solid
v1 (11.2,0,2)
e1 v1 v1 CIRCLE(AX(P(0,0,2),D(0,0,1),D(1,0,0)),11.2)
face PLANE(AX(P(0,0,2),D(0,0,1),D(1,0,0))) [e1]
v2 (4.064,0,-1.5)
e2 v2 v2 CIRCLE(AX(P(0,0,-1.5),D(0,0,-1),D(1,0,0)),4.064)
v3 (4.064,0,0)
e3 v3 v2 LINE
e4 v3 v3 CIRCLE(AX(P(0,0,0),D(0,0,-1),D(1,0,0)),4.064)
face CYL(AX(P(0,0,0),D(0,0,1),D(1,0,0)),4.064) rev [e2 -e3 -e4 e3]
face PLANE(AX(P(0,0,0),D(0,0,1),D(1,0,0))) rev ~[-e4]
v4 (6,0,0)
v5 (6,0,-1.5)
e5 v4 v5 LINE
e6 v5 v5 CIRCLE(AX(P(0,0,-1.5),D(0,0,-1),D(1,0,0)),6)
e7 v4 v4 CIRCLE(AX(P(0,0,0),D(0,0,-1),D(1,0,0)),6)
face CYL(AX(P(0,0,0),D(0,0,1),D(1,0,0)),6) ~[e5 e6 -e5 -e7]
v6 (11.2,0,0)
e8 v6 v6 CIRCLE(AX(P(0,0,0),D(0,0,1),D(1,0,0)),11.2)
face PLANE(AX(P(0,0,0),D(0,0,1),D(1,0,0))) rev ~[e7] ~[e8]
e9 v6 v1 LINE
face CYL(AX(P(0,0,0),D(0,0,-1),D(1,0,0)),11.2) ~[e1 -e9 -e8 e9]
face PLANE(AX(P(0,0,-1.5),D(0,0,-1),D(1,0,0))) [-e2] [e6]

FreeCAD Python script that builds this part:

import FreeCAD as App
import Part
import Sketcher

doc = App.newDocument("Part")
body = doc.addObject("PartDesign::Body", "Body")

sketch1 = body.newObject("Sketcher::SketchObject", "Sketch")
sketch1.AttachmentSupport = (doc.getObject("XY_Plane"), [""])
sketch1.MapMode = "FlatFace"
sketch1.addGeometry(Part.Circle(App.Vector(0, 0, 0), App.Vector(0, 0, 1), 11.2), False)
sketch1.addConstraint([
    Sketcher.Constraint("Coincident", 0, 3, -1, 1),
    Sketcher.Constraint("Diameter", 0, 22.4),
])
pad1 = body.newObject("PartDesign::Pad", "Pad")
pad1.Profile = sketch1
pad1.Length = 2

sketch2 = body.newObject("Sketcher::SketchObject", "Sketch001")
sketch2.AttachmentSupport = (doc.getObject("XY_Plane"), [""])
sketch2.MapMode = "FlatFace"
sketch2.addGeometry([
    Part.Circle(App.Vector(0, 0, 0), App.Vector(0, 0, 1), 6),
    Part.Circle(App.Vector(0, 0, 0), App.Vector(0, 0, 1), 4.064),
], False)
sketch2.addConstraint([
    Sketcher.Constraint("Coincident", 0, 3, -1, 1),
    Sketcher.Constraint("Coincident", 1, 3, -1, 1),
    Sketcher.Constraint("Diameter", 0, 12.0),
    Sketcher.Constraint("Diameter", 1, 8.128),
])
pad2 = body.newObject("PartDesign::Pad", "Pad001")
pad2.Profile = sketch2
pad2.Length = 1.5
pad2.Reversed = True

doc.recompute()
